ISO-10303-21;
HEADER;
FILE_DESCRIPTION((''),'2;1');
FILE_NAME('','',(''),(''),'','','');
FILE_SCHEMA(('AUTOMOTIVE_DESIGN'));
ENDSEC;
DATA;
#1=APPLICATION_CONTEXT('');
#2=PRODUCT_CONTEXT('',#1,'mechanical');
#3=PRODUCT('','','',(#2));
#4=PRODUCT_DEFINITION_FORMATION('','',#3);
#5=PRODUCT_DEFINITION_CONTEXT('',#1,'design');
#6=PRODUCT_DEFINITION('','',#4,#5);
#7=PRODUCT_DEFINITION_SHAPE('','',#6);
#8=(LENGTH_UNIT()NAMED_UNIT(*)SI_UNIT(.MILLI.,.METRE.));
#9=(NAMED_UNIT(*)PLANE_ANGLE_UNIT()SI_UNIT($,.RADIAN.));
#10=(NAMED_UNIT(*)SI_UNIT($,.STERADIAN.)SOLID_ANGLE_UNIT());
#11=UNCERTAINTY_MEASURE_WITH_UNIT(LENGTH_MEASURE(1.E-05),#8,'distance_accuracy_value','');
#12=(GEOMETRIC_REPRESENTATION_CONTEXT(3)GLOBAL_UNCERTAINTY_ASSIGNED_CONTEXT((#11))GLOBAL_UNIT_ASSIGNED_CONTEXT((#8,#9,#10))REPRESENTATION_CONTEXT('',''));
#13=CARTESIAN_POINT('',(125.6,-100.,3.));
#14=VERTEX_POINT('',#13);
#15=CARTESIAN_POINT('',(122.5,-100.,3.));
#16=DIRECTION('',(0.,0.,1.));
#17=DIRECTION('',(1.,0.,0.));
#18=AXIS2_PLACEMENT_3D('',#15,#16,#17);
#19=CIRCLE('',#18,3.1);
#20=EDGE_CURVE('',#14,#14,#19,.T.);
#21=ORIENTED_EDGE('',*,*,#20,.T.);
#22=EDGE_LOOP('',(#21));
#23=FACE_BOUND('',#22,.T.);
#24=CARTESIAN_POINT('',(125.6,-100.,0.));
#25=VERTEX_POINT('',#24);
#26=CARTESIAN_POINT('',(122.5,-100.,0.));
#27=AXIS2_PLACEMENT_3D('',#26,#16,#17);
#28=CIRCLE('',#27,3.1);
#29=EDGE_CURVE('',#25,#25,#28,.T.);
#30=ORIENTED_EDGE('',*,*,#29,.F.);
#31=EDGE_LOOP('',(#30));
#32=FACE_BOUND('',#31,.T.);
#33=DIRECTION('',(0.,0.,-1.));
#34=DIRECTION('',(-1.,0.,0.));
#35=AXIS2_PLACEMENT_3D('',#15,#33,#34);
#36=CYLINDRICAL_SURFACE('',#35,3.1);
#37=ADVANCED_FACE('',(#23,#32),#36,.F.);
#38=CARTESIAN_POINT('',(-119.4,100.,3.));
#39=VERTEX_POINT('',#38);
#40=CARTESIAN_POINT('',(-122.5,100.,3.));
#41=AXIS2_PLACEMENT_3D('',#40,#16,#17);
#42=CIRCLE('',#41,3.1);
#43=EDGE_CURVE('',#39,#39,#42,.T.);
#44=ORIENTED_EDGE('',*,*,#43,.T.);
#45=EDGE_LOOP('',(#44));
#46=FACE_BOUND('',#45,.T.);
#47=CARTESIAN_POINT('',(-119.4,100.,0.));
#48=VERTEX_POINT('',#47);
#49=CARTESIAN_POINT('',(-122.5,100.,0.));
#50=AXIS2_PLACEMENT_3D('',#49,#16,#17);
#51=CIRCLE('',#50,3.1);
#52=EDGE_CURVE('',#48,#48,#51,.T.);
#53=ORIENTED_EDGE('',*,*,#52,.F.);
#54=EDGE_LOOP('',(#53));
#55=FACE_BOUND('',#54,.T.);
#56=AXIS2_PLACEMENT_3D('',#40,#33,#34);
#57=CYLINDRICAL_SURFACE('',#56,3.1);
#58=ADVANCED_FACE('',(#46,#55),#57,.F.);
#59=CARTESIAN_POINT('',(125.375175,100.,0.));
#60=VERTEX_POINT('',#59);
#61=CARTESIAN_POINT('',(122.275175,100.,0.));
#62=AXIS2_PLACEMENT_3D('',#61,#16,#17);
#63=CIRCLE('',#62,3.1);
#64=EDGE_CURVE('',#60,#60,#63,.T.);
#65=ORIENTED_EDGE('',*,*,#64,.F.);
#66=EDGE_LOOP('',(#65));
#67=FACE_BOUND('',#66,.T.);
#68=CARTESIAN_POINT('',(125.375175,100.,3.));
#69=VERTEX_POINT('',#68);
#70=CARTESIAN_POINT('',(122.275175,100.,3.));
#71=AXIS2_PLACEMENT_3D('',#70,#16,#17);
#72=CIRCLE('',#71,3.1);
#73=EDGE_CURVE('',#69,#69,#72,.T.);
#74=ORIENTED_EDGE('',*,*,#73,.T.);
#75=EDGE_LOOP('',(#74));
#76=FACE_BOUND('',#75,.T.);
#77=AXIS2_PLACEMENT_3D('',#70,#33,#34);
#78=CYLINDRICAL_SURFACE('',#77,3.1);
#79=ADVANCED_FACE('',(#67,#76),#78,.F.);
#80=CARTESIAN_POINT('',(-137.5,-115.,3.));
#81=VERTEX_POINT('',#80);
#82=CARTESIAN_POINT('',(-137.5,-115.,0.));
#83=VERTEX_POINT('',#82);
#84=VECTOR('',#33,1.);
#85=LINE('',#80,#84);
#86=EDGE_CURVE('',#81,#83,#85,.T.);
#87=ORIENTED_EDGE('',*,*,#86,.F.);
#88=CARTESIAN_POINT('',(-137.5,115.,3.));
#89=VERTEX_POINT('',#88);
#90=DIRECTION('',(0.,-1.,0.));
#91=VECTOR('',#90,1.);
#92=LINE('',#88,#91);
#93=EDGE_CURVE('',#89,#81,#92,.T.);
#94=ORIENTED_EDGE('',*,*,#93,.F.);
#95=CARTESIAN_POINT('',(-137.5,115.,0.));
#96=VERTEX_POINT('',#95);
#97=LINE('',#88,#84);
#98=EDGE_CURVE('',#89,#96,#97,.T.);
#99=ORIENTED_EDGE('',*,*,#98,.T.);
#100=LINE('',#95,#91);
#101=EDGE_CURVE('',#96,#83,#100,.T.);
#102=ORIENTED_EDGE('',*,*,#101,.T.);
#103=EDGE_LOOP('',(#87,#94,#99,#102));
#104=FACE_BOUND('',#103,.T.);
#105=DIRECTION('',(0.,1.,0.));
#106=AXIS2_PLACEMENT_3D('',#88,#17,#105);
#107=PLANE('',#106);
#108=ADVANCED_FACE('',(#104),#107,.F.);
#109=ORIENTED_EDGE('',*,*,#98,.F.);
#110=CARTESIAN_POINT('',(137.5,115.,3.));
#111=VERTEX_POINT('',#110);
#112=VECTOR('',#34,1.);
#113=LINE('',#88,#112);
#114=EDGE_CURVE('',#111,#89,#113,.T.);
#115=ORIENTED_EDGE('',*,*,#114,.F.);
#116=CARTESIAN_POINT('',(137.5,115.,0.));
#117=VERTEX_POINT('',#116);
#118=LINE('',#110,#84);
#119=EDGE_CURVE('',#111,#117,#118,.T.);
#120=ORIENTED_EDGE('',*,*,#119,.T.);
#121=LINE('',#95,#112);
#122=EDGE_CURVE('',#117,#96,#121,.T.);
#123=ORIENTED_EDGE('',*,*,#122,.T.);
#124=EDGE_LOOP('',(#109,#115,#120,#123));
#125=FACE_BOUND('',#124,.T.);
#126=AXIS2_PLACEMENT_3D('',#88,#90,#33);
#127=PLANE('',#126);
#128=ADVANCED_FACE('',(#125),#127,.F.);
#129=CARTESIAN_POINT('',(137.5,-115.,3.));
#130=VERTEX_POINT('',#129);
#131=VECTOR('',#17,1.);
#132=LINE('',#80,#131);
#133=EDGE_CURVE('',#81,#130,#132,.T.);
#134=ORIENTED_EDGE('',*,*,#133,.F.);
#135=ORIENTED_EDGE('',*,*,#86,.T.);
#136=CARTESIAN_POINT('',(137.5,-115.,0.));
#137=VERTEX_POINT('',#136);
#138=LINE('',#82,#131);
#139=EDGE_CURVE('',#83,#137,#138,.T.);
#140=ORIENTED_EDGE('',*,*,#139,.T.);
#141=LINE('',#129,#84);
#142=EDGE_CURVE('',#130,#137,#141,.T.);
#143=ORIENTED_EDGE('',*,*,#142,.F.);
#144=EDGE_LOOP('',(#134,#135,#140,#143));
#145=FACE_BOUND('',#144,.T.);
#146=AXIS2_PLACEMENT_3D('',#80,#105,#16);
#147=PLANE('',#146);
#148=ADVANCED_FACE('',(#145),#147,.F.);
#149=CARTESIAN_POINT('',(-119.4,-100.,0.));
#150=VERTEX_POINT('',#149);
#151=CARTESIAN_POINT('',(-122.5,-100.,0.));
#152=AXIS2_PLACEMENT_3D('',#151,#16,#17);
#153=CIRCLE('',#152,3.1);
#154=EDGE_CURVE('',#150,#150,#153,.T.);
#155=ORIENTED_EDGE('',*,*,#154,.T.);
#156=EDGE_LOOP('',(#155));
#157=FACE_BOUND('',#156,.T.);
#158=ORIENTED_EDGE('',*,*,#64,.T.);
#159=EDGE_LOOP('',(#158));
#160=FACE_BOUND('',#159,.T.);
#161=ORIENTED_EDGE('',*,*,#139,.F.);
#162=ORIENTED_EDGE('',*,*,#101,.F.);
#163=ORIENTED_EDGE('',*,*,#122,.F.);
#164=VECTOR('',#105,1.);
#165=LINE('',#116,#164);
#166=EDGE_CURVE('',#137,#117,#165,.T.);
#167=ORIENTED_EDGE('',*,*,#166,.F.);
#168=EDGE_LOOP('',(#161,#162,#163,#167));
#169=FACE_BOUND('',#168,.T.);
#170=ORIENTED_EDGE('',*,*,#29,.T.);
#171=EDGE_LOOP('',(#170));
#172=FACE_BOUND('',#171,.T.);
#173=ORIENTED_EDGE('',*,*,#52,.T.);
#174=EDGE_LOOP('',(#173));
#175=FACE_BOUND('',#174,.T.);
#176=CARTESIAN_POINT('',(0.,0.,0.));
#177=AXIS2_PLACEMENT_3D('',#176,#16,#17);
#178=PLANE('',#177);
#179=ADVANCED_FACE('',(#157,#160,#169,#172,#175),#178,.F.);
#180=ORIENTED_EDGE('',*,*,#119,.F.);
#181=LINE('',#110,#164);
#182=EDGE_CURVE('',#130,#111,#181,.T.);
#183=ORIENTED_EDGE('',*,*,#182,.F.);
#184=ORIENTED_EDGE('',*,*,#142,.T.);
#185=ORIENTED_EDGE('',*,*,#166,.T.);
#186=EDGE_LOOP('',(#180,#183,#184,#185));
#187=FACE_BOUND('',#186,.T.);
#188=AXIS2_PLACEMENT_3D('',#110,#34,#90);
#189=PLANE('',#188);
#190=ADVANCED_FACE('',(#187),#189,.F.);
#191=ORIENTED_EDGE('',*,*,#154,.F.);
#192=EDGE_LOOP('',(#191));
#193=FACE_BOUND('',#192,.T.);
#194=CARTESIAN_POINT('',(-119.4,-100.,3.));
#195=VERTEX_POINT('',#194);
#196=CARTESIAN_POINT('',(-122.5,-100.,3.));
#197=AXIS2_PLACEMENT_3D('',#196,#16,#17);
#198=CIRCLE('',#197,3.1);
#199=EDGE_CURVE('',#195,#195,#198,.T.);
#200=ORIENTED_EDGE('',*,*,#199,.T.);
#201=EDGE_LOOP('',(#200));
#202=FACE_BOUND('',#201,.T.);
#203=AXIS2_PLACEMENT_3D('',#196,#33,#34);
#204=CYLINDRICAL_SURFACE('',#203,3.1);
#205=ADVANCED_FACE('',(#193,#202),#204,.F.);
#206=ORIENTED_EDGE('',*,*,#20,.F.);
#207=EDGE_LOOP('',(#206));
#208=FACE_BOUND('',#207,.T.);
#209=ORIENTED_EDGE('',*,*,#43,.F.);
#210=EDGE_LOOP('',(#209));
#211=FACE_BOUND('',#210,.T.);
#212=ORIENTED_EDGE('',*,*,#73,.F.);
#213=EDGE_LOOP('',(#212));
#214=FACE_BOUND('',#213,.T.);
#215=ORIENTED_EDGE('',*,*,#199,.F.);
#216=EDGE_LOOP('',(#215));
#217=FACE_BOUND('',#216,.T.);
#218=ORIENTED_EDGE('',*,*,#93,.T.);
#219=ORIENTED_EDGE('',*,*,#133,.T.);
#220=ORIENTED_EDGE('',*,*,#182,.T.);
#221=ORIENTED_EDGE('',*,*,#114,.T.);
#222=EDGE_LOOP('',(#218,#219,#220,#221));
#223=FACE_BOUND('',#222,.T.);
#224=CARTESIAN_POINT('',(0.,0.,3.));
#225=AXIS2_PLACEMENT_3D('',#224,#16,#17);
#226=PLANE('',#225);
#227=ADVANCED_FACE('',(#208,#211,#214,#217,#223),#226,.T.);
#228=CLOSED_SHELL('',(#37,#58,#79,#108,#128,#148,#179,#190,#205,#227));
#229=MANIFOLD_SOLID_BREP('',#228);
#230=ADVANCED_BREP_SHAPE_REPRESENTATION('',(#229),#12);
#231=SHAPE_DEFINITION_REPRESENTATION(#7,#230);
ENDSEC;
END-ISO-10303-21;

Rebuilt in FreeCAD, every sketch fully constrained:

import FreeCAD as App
import Part
import Sketcher
from FreeCAD import Vector
Q = App.Units.Quantity

doc = App.newDocument("Part")
params = doc.addObject("Spreadsheet::Sheet", "Params")
for row, (alias, value) in enumerate([
    ("sketch1_diameter", "6.2 mm"),
    ("sketch1_width", "275 mm"),
    ("sketch1_height", "230 mm"),
    ("pad1_length", "3 mm"),
], start=1):
    params.set(f"A{row}", alias)
    params.set(f"B{row}", "=" + value)
    params.setAlias(f"B{row}", alias)

body = doc.addObject("PartDesign::Body", "Body")

# Sketch on XY plane
sketch1 = body.newObject("Sketcher::SketchObject", "Sketch")
sketch1.AttachmentSupport = (doc.getObject("XY_Plane"), [""])
sketch1.MapMode = "FlatFace"
sketch1.addGeometry(Part.LineSegment(Vector(-137.5, 115, 0), Vector(-137.5, -115, 0)), False)
sketch1.addGeometry(Part.LineSegment(Vector(-137.5, -115, 0), Vector(137.5, -115, 0)), False)
sketch1.addGeometry(Part.LineSegment(Vector(137.5, -115, 0), Vector(137.5, 115, 0)), False)
sketch1.addGeometry(Part.LineSegment(Vector(137.5, 115, 0), Vector(-137.5, 115, 0)), False)
sketch1.addGeometry(Part.Circle(Vector(-122.5, -100, 0), Vector(0, 0, 1), 3.1), False)
sketch1.addGeometry(Part.Circle(Vector(122.5, -100, 0), Vector(0, 0, 1), 3.1), False)
sketch1.addGeometry(Part.Circle(Vector(-122.5, 100, 0), Vector(0, 0, 1), 3.1), False)
sketch1.addGeometry(Part.Circle(Vector(122.3, 100, 0), Vector(0, 0, 1), 3.1), False)
sketch1.addConstraint(Sketcher.Constraint("Coincident", 0, 2, 1, 1))
sketch1.addConstraint(Sketcher.Constraint("Coincident", 1, 2, 2, 1))
sketch1.addConstraint(Sketcher.Constraint("Coincident", 2, 2, 3, 1))
sketch1.addConstraint(Sketcher.Constraint("Coincident", 3, 2, 0, 1))
sketch1.addConstraint(Sketcher.Constraint("Vertical", 0))
sketch1.addConstraint(Sketcher.Constraint("Horizontal", 1))
sketch1.addConstraint(Sketcher.Constraint("Vertical", 2))
sketch1.addConstraint(Sketcher.Constraint("Horizontal", 3))
sketch1.addConstraint(Sketcher.Constraint("Equal", 4, 5))
sketch1.addConstraint(Sketcher.Constraint("Equal", 5, 6))
sketch1.addConstraint(Sketcher.Constraint("Equal", 6, 7))
sketch1.addConstraint(Sketcher.Constraint("Symmetric", 5, 3, 6, 3, -1, 1))
sketch1.addConstraint(Sketcher.Constraint("Symmetric", 0, 2, 2, 2, -1, 1))
sketch1.addConstraint(Sketcher.Constraint("Symmetric", 4, 3, 5, 3, -2))
sketch1.addConstraint(Sketcher.Constraint("Horizontal", 6, 3, 7, 3))
sketch1.addConstraint(Sketcher.Constraint("Diameter", 4, Q("6.2 mm")))
sketch1.addConstraint(Sketcher.Constraint("DistanceX", 1, 1, 1, 2, Q("275 mm")))
sketch1.addConstraint(Sketcher.Constraint("DistanceY", 0, 2, 0, 1, Q("230 mm")))
sketch1.addConstraint(Sketcher.Constraint("DistanceY", 4, 3, -1, 1, Q("100 mm")))
sketch1.addConstraint(Sketcher.Constraint("DistanceX", 4, 3, 5, 3, Q("245 mm")))
sketch1.addConstraint(Sketcher.Constraint("DistanceX", -1, 1, 7, 3, Q("122.275175 mm")))
sketch1.setExpression("Constraints[15]", "Params.sketch1_diameter")
sketch1.setExpression("Constraints[16]", "Params.sketch1_width")
sketch1.setExpression("Constraints[17]", "Params.sketch1_height")
pad1 = body.newObject("PartDesign::Pad", "Pad")
pad1.Profile = sketch1
pad1.setExpression("Length", "Params.pad1_length")

doc.recompute()
